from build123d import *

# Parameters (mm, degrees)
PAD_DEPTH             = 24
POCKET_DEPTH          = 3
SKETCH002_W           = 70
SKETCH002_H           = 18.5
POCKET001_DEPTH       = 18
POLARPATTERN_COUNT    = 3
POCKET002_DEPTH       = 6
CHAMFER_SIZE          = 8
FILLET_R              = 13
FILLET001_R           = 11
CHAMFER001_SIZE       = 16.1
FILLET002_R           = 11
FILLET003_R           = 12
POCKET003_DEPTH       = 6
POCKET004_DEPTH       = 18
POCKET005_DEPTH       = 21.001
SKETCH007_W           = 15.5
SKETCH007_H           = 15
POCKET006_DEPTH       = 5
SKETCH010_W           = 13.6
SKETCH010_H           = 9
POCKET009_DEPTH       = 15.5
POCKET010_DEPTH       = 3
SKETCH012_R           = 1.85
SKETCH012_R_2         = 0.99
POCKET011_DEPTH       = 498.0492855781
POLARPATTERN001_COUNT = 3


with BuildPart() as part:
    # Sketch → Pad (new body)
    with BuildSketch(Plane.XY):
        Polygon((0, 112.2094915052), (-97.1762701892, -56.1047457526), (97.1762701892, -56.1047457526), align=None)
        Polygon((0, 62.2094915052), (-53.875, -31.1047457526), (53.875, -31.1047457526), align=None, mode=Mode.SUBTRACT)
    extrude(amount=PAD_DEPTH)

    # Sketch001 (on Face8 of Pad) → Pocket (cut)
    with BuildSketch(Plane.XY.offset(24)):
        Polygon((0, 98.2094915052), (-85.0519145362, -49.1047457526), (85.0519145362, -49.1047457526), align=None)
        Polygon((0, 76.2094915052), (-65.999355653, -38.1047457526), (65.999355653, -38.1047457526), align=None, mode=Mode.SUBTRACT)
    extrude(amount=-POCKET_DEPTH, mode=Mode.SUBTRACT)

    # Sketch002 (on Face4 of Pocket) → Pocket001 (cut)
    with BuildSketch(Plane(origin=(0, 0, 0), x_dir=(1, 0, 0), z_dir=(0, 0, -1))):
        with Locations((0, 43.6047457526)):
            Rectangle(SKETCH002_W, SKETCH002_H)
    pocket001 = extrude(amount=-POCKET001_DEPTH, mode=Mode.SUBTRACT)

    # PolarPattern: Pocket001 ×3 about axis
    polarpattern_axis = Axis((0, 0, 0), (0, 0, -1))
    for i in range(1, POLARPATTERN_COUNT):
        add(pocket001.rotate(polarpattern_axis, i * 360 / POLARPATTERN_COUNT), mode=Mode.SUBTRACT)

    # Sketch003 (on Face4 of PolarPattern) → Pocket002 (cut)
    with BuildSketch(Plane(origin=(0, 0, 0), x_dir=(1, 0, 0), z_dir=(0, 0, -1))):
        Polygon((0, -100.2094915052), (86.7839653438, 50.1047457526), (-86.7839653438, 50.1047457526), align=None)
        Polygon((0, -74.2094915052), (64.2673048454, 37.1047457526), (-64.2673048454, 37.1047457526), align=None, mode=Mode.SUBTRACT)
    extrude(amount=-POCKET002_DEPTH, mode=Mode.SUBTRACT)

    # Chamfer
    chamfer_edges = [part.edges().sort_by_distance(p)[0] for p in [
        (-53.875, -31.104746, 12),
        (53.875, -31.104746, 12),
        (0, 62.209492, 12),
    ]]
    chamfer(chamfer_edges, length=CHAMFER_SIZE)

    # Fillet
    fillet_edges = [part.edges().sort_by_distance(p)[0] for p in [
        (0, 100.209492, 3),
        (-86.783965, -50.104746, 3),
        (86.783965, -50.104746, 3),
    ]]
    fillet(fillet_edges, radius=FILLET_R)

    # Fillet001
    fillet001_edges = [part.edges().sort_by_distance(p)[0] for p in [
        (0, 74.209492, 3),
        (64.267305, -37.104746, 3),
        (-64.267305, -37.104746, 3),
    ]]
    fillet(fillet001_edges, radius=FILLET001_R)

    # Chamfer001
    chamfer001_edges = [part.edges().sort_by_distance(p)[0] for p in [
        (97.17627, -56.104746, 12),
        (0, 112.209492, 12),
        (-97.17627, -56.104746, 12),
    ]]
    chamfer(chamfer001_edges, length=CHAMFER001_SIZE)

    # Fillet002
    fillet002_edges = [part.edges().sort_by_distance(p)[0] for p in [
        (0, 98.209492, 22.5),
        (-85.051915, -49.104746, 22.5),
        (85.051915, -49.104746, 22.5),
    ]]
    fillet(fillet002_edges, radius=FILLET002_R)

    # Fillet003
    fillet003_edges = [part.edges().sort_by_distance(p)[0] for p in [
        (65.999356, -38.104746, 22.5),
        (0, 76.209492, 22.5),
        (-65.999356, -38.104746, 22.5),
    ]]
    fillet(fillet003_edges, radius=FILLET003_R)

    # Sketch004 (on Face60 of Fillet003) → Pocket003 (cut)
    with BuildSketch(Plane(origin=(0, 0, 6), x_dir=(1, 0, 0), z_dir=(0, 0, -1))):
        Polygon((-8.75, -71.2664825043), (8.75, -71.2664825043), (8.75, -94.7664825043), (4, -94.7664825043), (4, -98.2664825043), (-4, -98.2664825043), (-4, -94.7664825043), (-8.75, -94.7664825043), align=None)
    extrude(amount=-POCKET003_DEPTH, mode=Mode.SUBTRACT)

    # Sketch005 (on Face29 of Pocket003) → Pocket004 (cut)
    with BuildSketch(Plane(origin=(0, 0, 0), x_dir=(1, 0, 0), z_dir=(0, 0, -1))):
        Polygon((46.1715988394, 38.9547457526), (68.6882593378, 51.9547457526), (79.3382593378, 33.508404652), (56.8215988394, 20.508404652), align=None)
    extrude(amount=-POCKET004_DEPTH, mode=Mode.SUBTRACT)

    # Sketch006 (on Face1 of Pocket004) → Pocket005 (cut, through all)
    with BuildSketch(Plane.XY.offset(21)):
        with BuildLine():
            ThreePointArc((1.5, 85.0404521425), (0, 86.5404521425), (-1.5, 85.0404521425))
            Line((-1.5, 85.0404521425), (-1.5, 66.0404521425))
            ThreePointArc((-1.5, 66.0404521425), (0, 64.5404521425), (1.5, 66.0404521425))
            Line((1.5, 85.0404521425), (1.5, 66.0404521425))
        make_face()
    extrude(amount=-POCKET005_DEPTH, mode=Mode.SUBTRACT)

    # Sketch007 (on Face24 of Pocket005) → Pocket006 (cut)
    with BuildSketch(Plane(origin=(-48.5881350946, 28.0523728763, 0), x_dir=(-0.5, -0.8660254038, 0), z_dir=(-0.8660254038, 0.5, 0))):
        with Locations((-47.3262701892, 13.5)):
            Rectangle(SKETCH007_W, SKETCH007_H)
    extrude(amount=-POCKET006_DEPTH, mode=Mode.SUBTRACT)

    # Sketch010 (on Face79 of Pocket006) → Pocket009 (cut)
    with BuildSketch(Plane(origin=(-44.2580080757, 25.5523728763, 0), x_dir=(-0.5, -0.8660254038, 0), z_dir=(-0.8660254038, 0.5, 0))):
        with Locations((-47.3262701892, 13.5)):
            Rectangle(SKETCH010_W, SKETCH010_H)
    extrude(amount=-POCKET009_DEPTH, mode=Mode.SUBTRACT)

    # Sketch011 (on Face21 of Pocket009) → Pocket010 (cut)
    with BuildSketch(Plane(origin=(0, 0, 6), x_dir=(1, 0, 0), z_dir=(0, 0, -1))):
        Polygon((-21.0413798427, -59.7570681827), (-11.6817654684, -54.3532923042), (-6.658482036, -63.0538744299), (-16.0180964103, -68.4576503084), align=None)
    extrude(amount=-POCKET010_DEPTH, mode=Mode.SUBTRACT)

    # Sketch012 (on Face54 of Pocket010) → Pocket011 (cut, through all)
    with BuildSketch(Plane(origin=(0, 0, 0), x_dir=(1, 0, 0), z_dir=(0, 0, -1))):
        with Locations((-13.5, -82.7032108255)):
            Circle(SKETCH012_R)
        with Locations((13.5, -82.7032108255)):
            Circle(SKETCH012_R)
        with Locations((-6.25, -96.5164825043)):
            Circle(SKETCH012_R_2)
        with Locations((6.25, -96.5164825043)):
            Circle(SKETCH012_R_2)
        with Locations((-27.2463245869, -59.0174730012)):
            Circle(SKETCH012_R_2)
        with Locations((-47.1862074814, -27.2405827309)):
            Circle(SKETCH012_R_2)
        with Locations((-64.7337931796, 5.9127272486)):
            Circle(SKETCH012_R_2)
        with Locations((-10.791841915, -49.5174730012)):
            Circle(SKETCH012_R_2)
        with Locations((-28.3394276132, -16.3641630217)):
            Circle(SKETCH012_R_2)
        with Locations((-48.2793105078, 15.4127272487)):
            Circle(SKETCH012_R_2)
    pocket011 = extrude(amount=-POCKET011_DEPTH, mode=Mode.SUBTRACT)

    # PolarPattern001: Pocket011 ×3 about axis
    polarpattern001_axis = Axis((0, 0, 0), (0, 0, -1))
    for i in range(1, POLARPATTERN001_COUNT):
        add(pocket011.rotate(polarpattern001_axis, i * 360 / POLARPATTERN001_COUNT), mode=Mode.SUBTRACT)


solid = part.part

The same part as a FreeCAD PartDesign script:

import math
import FreeCAD as App
import Part
import Sketcher
Q = App.Units.Quantity


def edges_at(feature, points):
    """Names of the edges that pass closest to the given points."""
    edges = feature.Shape.Edges
    near = lambda p: min(range(len(edges)), key=lambda i: edges[i].distToShape(Part.Vertex(*p))[0])
    return sorted({f"Edge{near(p) + 1}" for p in points})

doc = App.newDocument("Part")
body = doc.addObject("PartDesign::Body", "Body")

sketch1 = body.newObject("Sketcher::SketchObject", "Sketch")
sketch1.AttachmentSupport = (doc.getObject("XY_Plane"), [""])
sketch1.MapMode = "FlatFace"
sketch1.addGeometry([
    Part.LineSegment(App.Vector(0, 112, 0), App.Vector(-97, -56, 0)),
    Part.LineSegment(App.Vector(-97, -56, 0), App.Vector(97, -56, 0)),
    Part.LineSegment(App.Vector(97, -56, 0), App.Vector(0, 112, 0)),
    Part.LineSegment(App.Vector(-54, -31, 0), App.Vector(0, 62, 0)),
    Part.LineSegment(App.Vector(0, 62, 0), App.Vector(54, -31, 0)),
    Part.LineSegment(App.Vector(54, -31, 0), App.Vector(-54, -31, 0)),
], False)
sketch1.addConstraint([
    Sketcher.Constraint("Coincident", 0, 2, 1, 1),
    Sketcher.Constraint("Coincident", 1, 2, 2, 1),
    Sketcher.Constraint("Coincident", 2, 2, 0, 1),
    Sketcher.Constraint("Coincident", 3, 2, 4, 1),
    Sketcher.Constraint("Coincident", 4, 2, 5, 1),
    Sketcher.Constraint("Coincident", 5, 2, 3, 1),
    Sketcher.Constraint("Horizontal", 1),
    Sketcher.Constraint("Horizontal", 5),
    Sketcher.Constraint("PointOnObject", 2, 2, -2),
    Sketcher.Constraint("PointOnObject", 3, 2, -2),
    Sketcher.Constraint("Parallel", 0, 3),
    Sketcher.Constraint("Parallel", 2, 4),
    Sketcher.Constraint("Equal", 0, 2),
    Sketcher.Constraint("Angle", 0, Q("-120 deg")),
    Sketcher.Constraint("DistanceY", 3, 2, 2, 2, 50.0),
    Sketcher.Constraint("DistanceY", 1, 2, 4, 2, 25.0),
    Sketcher.Constraint("DistanceX", 5, 2, 5, 1, 107.75),
    Sketcher.Constraint("DistanceY", -1, 1, 2, 2, 112.209492),
])
pad1 = body.newObject("PartDesign::Pad", "Pad")
pad1.Profile = sketch1
pad1.Length = 24

sketch2 = body.newObject("Sketcher::SketchObject", "Sketch001")
sketch2.AttachmentSupport = (doc.getObject("XY_Plane"), [""])
sketch2.MapMode = "FlatFace"
sketch2.AttachmentOffset = App.Placement(App.Vector(0, 0, 24), App.Rotation())
sketch2.addGeometry([
    Part.LineSegment(App.Vector(0, 98, 0), App.Vector(-85, -49, 0)),
    Part.LineSegment(App.Vector(-85, -49, 0), App.Vector(85, -49, 0)),
    Part.LineSegment(App.Vector(85, -49, 0), App.Vector(0, 98, 0)),
    Part.LineSegment(App.Vector(-66, -38, 0), App.Vector(0, 76, 0)),
    Part.LineSegment(App.Vector(0, 76, 0), App.Vector(66, -38, 0)),
    Part.LineSegment(App.Vector(66, -38, 0), App.Vector(-66, -38, 0)),
], False)
sketch2.addConstraint([
    Sketcher.Constraint("Coincident", 0, 2, 1, 1),
    Sketcher.Constraint("Coincident", 1, 2, 2, 1),
    Sketcher.Constraint("Coincident", 2, 2, 0, 1),
    Sketcher.Constraint("Coincident", 3, 2, 4, 1),
    Sketcher.Constraint("Coincident", 4, 2, 5, 1),
    Sketcher.Constraint("Coincident", 5, 2, 3, 1),
    Sketcher.Constraint("Horizontal", 1),
    Sketcher.Constraint("Horizontal", 5),
    Sketcher.Constraint("PointOnObject", 2, 2, -2),
    Sketcher.Constraint("PointOnObject", 3, 2, -2),
    Sketcher.Constraint("Parallel", 0, 3),
    Sketcher.Constraint("Parallel", 2, 4),
    Sketcher.Constraint("Equal", 0, 2),
    Sketcher.Constraint("Angle", 0, Q("-120 deg")),
    Sketcher.Constraint("DistanceY", 3, 2, 2, 2, 22.0),
    Sketcher.Constraint("DistanceY", 1, 2, 4, 2, 11.0),
    Sketcher.Constraint("DistanceX", 1, 1, 1, 2, 170.103829),
    Sketcher.Constraint("DistanceY", -1, 1, 2, 2, 98.209492),
])
pocket1 = body.newObject("PartDesign::Pocket", "Pocket")
pocket1.Profile = sketch2
pocket1.Length = 3

sketch3 = body.newObject("Sketcher::SketchObject", "Sketch002")
sketch3.AttachmentSupport = (doc.getObject("XY_Plane"), [""])
sketch3.MapMode = "FlatFace"
sketch3.addGeometry([
    Part.LineSegment(App.Vector(-35, -53, 0), App.Vector(-35, -34, 0)),
    Part.LineSegment(App.Vector(-35, -34, 0), App.Vector(35, -34, 0)),
    Part.LineSegment(App.Vector(35, -34, 0), App.Vector(35, -53, 0)),
    Part.LineSegment(App.Vector(35, -53, 0), App.Vector(-35, -53, 0)),
], False)
sketch3.addConstraint([
    Sketcher.Constraint("Coincident", 0, 2, 1, 1),
    Sketcher.Constraint("Coincident", 1, 2, 2, 1),
    Sketcher.Constraint("Coincident", 2, 2, 3, 1),
    Sketcher.Constraint("Coincident", 3, 2, 0, 1),
    Sketcher.Constraint("Vertical", 0),
    Sketcher.Constraint("Horizontal", 1),
    Sketcher.Constraint("Vertical", 2),
    Sketcher.Constraint("Horizontal", 3),
    Sketcher.Constraint("DistanceX", 1, 1, 1, 2, 70.0),
    Sketcher.Constraint("DistanceY", 0, 1, 0, 2, 18.5),
    Sketcher.Constraint("DistanceX", 0, 2, -1, 1, 35.0),
    Sketcher.Constraint("DistanceY", 0, 2, -1, 1, 34.354746),
])
pocket2 = body.newObject("PartDesign::Pocket", "Pocket001")
pocket2.Profile = sketch3
pocket2.Length = 18
pocket2.Reversed = True
doc.recompute()

polarpattern = body.newObject("PartDesign::PolarPattern", "PolarPattern")
polarpattern.Originals = [pocket2]
polarpattern.Axis = (doc.getObject("Z_Axis"), [""])
polarpattern.Angle = 360
polarpattern.Occurrences = 3
body.Tip = polarpattern

sketch4 = body.newObject("Sketcher::SketchObject", "Sketch003")
sketch4.AttachmentSupport = (doc.getObject("XY_Plane"), [""])
sketch4.MapMode = "FlatFace"
sketch4.addGeometry([
    Part.LineSegment(App.Vector(0, 100, 0), App.Vector(87, -50, 0)),
    Part.LineSegment(App.Vector(87, -50, 0), App.Vector(-87, -50, 0)),
    Part.LineSegment(App.Vector(-87, -50, 0), App.Vector(0, 100, 0)),
    Part.LineSegment(App.Vector(64, -37, 0), App.Vector(0, 74, 0)),
    Part.LineSegment(App.Vector(0, 74, 0), App.Vector(-64, -37, 0)),
    Part.LineSegment(App.Vector(-64, -37, 0), App.Vector(64, -37, 0)),
], False)
sketch4.addConstraint([
    Sketcher.Constraint("Coincident", 0, 2, 1, 1),
    Sketcher.Constraint("Coincident", 1, 2, 2, 1),
    Sketcher.Constraint("Coincident", 2, 2, 0, 1),
    Sketcher.Constraint("Coincident", 3, 2, 4, 1),
    Sketcher.Constraint("Coincident", 4, 2, 5, 1),
    Sketcher.Constraint("Coincident", 5, 2, 3, 1),
    Sketcher.Constraint("Horizontal", 1),
    Sketcher.Constraint("Horizontal", 5),
    Sketcher.Constraint("PointOnObject", 2, 2, -2),
    Sketcher.Constraint("PointOnObject", 3, 2, -2),
    Sketcher.Constraint("Parallel", 0, 3),
    Sketcher.Constraint("Parallel", 2, 4),
    Sketcher.Constraint("Equal", 0, 2),
    Sketcher.Constraint("Angle", 0, Q("-60 deg")),
    Sketcher.Constraint("DistanceY", 3, 2, 2, 2, 26.0),
    Sketcher.Constraint("DistanceY", 1, 2, 4, 2, 13.0),
    Sketcher.Constraint("DistanceX", 1, 2, 1, 1, 173.567931),
    Sketcher.Constraint("DistanceY", -1, 1, 2, 2, 100.209492),
])
pocket3 = body.newObject("PartDesign::Pocket", "Pocket002")
pocket3.Profile = sketch4
pocket3.Length = 6
pocket3.Reversed = True
doc.recompute()

chamfer = body.newObject("PartDesign::Chamfer", "Chamfer")
chamfer.Base = (pocket3, edges_at(pocket3, [(-53.875, -31.105, 12), (53.875, -31.105, 12), (0, 62.209, 12)]))
chamfer.Size = 8
doc.recompute()

fillet = body.newObject("PartDesign::Fillet", "Fillet")
fillet.Base = (chamfer, edges_at(chamfer, [(0, 100.209, 3), (-86.784, -50.105, 3), (86.784, -50.105, 3)]))
fillet.Radius = 13
doc.recompute()

fillet2 = body.newObject("PartDesign::Fillet", "Fillet001")
fillet2.Base = (fillet, edges_at(fillet, [(0, 74.209, 3), (64.267, -37.105, 3), (-64.267, -37.105, 3)]))
fillet2.Radius = 11
doc.recompute()

chamfer2 = body.newObject("PartDesign::Chamfer", "Chamfer001")
chamfer2.Base = (fillet2, edges_at(fillet2, [(97.176, -56.105, 12), (0, 112.209, 12), (-97.176, -56.105, 12)]))
chamfer2.Size = 16.1
doc.recompute()

fillet3 = body.newObject("PartDesign::Fillet", "Fillet002")
fillet3.Base = (chamfer2, edges_at(chamfer2, [(0, 98.209, 22.5), (-85.052, -49.105, 22.5), (85.052, -49.105, 22.5)]))
fillet3.Radius = 11
doc.recompute()

fillet4 = body.newObject("PartDesign::Fillet", "Fillet003")
fillet4.Base = (fillet3, edges_at(fillet3, [(65.999, -38.105, 22.5), (0, 76.209, 22.5), (-65.999, -38.105, 22.5)]))
fillet4.Radius = 12

sketch5 = body.newObject("Sketcher::SketchObject", "Sketch004")
sketch5.AttachmentSupport = (doc.getObject("XY_Plane"), [""])
sketch5.MapMode = "FlatFace"
sketch5.AttachmentOffset = App.Placement(App.Vector(0, 0, 6), App.Rotation())
sketch5.addGeometry([
    Part.LineSegment(App.Vector(8.8, 71.3, 0), App.Vector(-8.8, 71.3, 0)),
    Part.LineSegment(App.Vector(-8.8, 71.3, 0), App.Vector(-8.8, 94.8, 0)),
    Part.LineSegment(App.Vector(-8.8, 94.8, 0), App.Vector(-4, 94.8, 0)),
    Part.LineSegment(App.Vector(-4, 94.8, 0), App.Vector(-4, 98.3, 0)),
    Part.LineSegment(App.Vector(-4, 98.3, 0), App.Vector(4, 98.3, 0)),
    Part.LineSegment(App.Vector(4, 98.3, 0), App.Vector(4, 94.8, 0)),
    Part.LineSegment(App.Vector(4, 94.8, 0), App.Vector(8.8, 94.8, 0)),
    Part.LineSegment(App.Vector(8.8, 94.8, 0), App.Vector(8.8, 71.3, 0)),
], False)
sketch5.addConstraint([
    Sketcher.Constraint("Coincident", 0, 2, 1, 1),
    Sketcher.Constraint("Coincident", 1, 2, 2, 1),
    Sketcher.Constraint("Coincident", 2, 2, 3, 1),
    Sketcher.Constraint("Coincident", 3, 2, 4, 1),
    Sketcher.Constraint("Coincident", 4, 2, 5, 1),
    Sketcher.Constraint("Coincident", 5, 2, 6, 1),
    Sketcher.Constraint("Coincident", 6, 2, 7, 1),
    Sketcher.Constraint("Coincident", 7, 2, 0, 1),
    Sketcher.Constraint("Horizontal", 0),
    Sketcher.Constraint("Vertical", 1),
    Sketcher.Constraint("Horizontal", 2),
    Sketcher.Constraint("Vertical", 3),
    Sketcher.Constraint("Horizontal", 4),
    Sketcher.Constraint("Vertical", 5),
    Sketcher.Constraint("Horizontal", 6),
    Sketcher.Constraint("Vertical", 7),
    Sketcher.Constraint("Symmetric", 2, 2, 5, 2, -2),
    Sketcher.Constraint("Equal", 2, 6),
    Sketcher.Constraint("DistanceX", 4, 1, 4, 2, 8.0),
    Sketcher.Constraint("DistanceX", 0, 2, 0, 1, 17.5),
    Sketcher.Constraint("DistanceY", 1, 1, 1, 2, 23.5),
    Sketcher.Constraint("DistanceY", 3, 1, 3, 2, 3.5),
    Sketcher.Constraint("DistanceY", -1, 1, 0, 2, 71.266483),
])
pocket4 = body.newObject("PartDesign::Pocket", "Pocket003")
pocket4.Profile = sketch5
pocket4.Length = 6
pocket4.Reversed = True

sketch6 = body.newObject("Sketcher::SketchObject", "Sketch005")
sketch6.AttachmentSupport = (doc.getObject("XY_Plane"), [""])
sketch6.MapMode = "FlatFace"
sketch6.addGeometry([
    Part.LineSegment(App.Vector(69, -52, 0), App.Vector(46, -39, 0)),
    Part.LineSegment(App.Vector(46, -39, 0), App.Vector(57, -21, 0)),
    Part.LineSegment(App.Vector(57, -21, 0), App.Vector(79, -34, 0)),
    Part.LineSegment(App.Vector(79, -34, 0), App.Vector(69, -52, 0)),
], False)
sketch6.addConstraint([
    Sketcher.Constraint("Coincident", 0, 2, 1, 1),
    Sketcher.Constraint("Coincident", 1, 2, 2, 1),
    Sketcher.Constraint("Coincident", 2, 2, 3, 1),
    Sketcher.Constraint("Coincident", 3, 2, 0, 1),
    Sketcher.Constraint("Perpendicular", 0, 1),
    Sketcher.Constraint("Perpendicular", 1, 2),
    Sketcher.Constraint("Perpendicular", 2, 3),
    Sketcher.Constraint("Angle", 0, Q("150 deg")),
    Sketcher.Constraint("Distance", 0, 26.0),
    Sketcher.Constraint("Distance", 1, 21.3),
    Sketcher.Constraint("DistanceX", -1, 1, 0, 2, 46.171599),
    Sketcher.Constraint("DistanceY", 0, 2, -1, 1, 38.954746),
])
pocket5 = body.newObject("PartDesign::Pocket", "Pocket004")
pocket5.Profile = sketch6
pocket5.Length = 18
pocket5.Reversed = True

sketch7 = body.newObject("Sketcher::SketchObject", "Sketch006")
sketch7.AttachmentSupport = (doc.getObject("XY_Plane"), [""])
sketch7.MapMode = "FlatFace"
sketch7.AttachmentOffset = App.Placement(App.Vector(0, 0, 21), App.Rotation())
sketch7.addGeometry([
    Part.ArcOfCircle(Part.Circle(App.Vector(0, 85, 0), App.Vector(0, 0, 1), 1.5), math.radians(0), math.radians(180)),
    Part.LineSegment(App.Vector(-1.5, 85, 0), App.Vector(-1.5, 66, 0)),
    Part.ArcOfCircle(Part.Circle(App.Vector(0, 66, 0), App.Vector(0, 0, 1), 1.5), math.radians(180), math.radians(360)),
    Part.LineSegment(App.Vector(1.5, 66, 0), App.Vector(1.5, 85, 0)),
], False)
sketch7.addConstraint([
    Sketcher.Constraint("Tangent", 0, 2, 1, 1),
    Sketcher.Constraint("Tangent", 1, 2, 2, 1),
    Sketcher.Constraint("Tangent", 2, 2, 3, 1),
    Sketcher.Constraint("Tangent", 3, 2, 0, 1),
    Sketcher.Constraint("Vertical", 1),
    Sketcher.Constraint("Vertical", 3),
    Sketcher.Constraint("PointOnObject", 0, 3, -2),
    Sketcher.Constraint("Radius", 0, 1.5),
    Sketcher.Constraint("DistanceY", 1, 2, 1, 1, 19.0),
    Sketcher.Constraint("DistanceY", -1, 1, 0, 3, 85.040452),
])
pocket6 = body.newObject("PartDesign::Pocket", "Pocket005")
pocket6.Profile = sketch7
pocket6.Type = "ThroughAll"

sketch8 = body.newObject("Sketcher::SketchObject", "Sketch007")
sketch8.Placement = App.Placement(App.Vector(-48.588135, 28.052373, 0), App.Rotation(App.Vector(-0.5, -0.866025404, 0), App.Vector(0, 0, 1), App.Vector(-0.866025404, 0.5, 0), "ZXY"))
sketch8.addGeometry([
    Part.LineSegment(App.Vector(-55, 21, 0), App.Vector(-55, 6, 0)),
    Part.LineSegment(App.Vector(-55, 6, 0), App.Vector(-40, 6, 0)),
    Part.LineSegment(App.Vector(-40, 6, 0), App.Vector(-40, 21, 0)),
    Part.LineSegment(App.Vector(-40, 21, 0), App.Vector(-55, 21, 0)),
], False)
sketch8.addConstraint([
    Sketcher.Constraint("Coincident", 0, 2, 1, 1),
    Sketcher.Constraint("Coincident", 1, 2, 2, 1),
    Sketcher.Constraint("Coincident", 2, 2, 3, 1),
    Sketcher.Constraint("Coincident", 3, 2, 0, 1),
    Sketcher.Constraint("Vertical", 0),
    Sketcher.Constraint("Horizontal", 1),
    Sketcher.Constraint("Vertical", 2),
    Sketcher.Constraint("Horizontal", 3),
    Sketcher.Constraint("DistanceY", 0, 2, 0, 1, 15.0),
    Sketcher.Constraint("DistanceX", 1, 1, 1, 2, 15.5),
    Sketcher.Constraint("DistanceY", -1, 1, 0, 2, 6.0),
    Sketcher.Constraint("DistanceX", 0, 2, -1, 1, 55.07627),
])
pocket7 = body.newObject("PartDesign::Pocket", "Pocket006")
pocket7.Profile = sketch8
pocket7.Length = 5

sketch9 = body.newObject("Sketcher::SketchObject", "Sketch008")
sketch9.Placement = App.Placement(App.Vector(-44.258008, 25.552373, 0), App.Rotation(App.Vector(-0.5, -0.866025404, 0), App.Vector(0, 0, 1), App.Vector(-0.866025404, 0.5, 0), "ZXY"))
sketch9.addGeometry([
    Part.LineSegment(App.Vector(-54, 18, 0), App.Vector(-54, 9, 0)),
    Part.LineSegment(App.Vector(-54, 9, 0), App.Vector(-41, 9, 0)),
    Part.LineSegment(App.Vector(-41, 9, 0), App.Vector(-41, 18, 0)),
    Part.LineSegment(App.Vector(-41, 18, 0), App.Vector(-54, 18, 0)),
], False)
sketch9.addConstraint([
    Sketcher.Constraint("Coincident", 0, 2, 1, 1),
    Sketcher.Constraint("Coincident", 1, 2, 2, 1),
    Sketcher.Constraint("Coincident", 2, 2, 3, 1),
    Sketcher.Constraint("Coincident", 3, 2, 0, 1),
    Sketcher.Constraint("Vertical", 0),
    Sketcher.Constraint("Horizontal", 1),
    Sketcher.Constraint("Vertical", 2),
    Sketcher.Constraint("Horizontal", 3),
    Sketcher.Constraint("DistanceY", 0, 2, 0, 1, 9.0),
    Sketcher.Constraint("DistanceX", 1, 1, 1, 2, 13.6),
    Sketcher.Constraint("DistanceY", -1, 1, 0, 2, 9.0),
    Sketcher.Constraint("DistanceX", 0, 2, -1, 1, 54.12627),
])
pocket8 = body.newObject("PartDesign::Pocket", "Pocket007")
pocket8.Profile = sketch9
pocket8.Length = 15.5

sketch10 = body.newObject("Sketcher::SketchObject", "Sketch009")
sketch10.AttachmentSupport = (doc.getObject("XY_Plane"), [""])
sketch10.MapMode = "FlatFace"
sketch10.AttachmentOffset = App.Placement(App.Vector(0, 0, 6), App.Rotation())
sketch10.addGeometry([
    Part.LineSegment(App.Vector(-12, 54, 0), App.Vector(-21, 60, 0)),
    Part.LineSegment(App.Vector(-21, 60, 0), App.Vector(-16, 68, 0)),
    Part.LineSegment(App.Vector(-16, 68, 0), App.Vector(-7, 63, 0)),
    Part.LineSegment(App.Vector(-7, 63, 0), App.Vector(-12, 54, 0)),
], False)
sketch10.addConstraint([
    Sketcher.Constraint("Coincident", 0, 2, 1, 1),
    Sketcher.Constraint("Coincident", 1, 2, 2, 1),
    Sketcher.Constraint("Coincident", 2, 2, 3, 1),
    Sketcher.Constraint("Coincident", 3, 2, 0, 1),
    Sketcher.Constraint("Perpendicular", 0, 1),
    Sketcher.Constraint("Perpendicular", 1, 2),
    Sketcher.Constraint("Perpendicular", 2, 3),
    Sketcher.Constraint("Angle", 0, Q("150 deg")),
    Sketcher.Constraint("Distance", 0, 10.807552),
    Sketcher.Constraint("DistanceX", 0, 2, -1, 1, 21.04138),
    Sketcher.Constraint("DistanceY", -1, 1, 0, 2, 59.757068),
    Sketcher.Constraint("DistanceY", -1, 1, 1, 2, 68.45765),
])
pocket9 = body.newObject("PartDesign::Pocket", "Pocket008")
pocket9.Profile = sketch10
pocket9.Length = 3
pocket9.Reversed = True

sketch11 = body.newObject("Sketcher::SketchObject", "Sketch010")
sketch11.AttachmentSupport = (doc.getObject("XY_Plane"), [""])
sketch11.MapMode = "FlatFace"
sketch11.addGeometry([
    Part.Circle(App.Vector(-13.5, 82.7, 0), App.Vector(0, 0, 1), 1.9),
    Part.Circle(App.Vector(13.5, 82.7, 0), App.Vector(0, 0, 1), 1.9),
    Part.Circle(App.Vector(-6.2, 96.5, 0), App.Vector(0, 0, 1), 1),
    Part.Circle(App.Vector(6.2, 96.5, 0), App.Vector(0, 0, 1), 1),
    Part.Circle(App.Vector(-27.2, 59, 0), App.Vector(0, 0, 1), 1),
    Part.Circle(App.Vector(-47.2, 27.2, 0), App.Vector(0, 0, 1), 1),
    Part.Circle(App.Vector(-64.7, -5.9, 0), App.Vector(0, 0, 1), 1),
    Part.Circle(App.Vector(-10.8, 49.5, 0), App.Vector(0, 0, 1), 1),
    Part.Circle(App.Vector(-28.3, 16.4, 0), App.Vector(0, 0, 1), 1),
    Part.Circle(App.Vector(-48.3, -15.4, 0), App.Vector(0, 0, 1), 1),
], False)
sketch11.addConstraint([
    Sketcher.Constraint("Equal", 0, 1),
    Sketcher.Constraint("Equal", 2, 3),
    Sketcher.Constraint("Equal", 3, 4),
    Sketcher.Constraint("Equal", 4, 5),
    Sketcher.Constraint("Equal", 5, 6),
    Sketcher.Constraint("Equal", 6, 7),
    Sketcher.Constraint("Equal", 7, 8),
    Sketcher.Constraint("Equal", 8, 9),
    Sketcher.Constraint("Symmetric", 0, 3, 1, 3, -2),
    Sketcher.Constraint("Symmetric", 2, 3, 3, 3, -2),
    Sketcher.Constraint("Diameter", 0, 3.7),
    Sketcher.Constraint("Diameter", 2, 1.98),
    Sketcher.Constraint("DistanceX", 0, 3, 1, 3, 27.0),
    Sketcher.Constraint("DistanceX", 2, 3, 3, 3, 12.5),
    Sketcher.Constraint("DistanceY", 7, 3, 4, 3, 9.5),
    Sketcher.Constraint("DistanceY", 9, 3, 6, 3, 9.5),
    Sketcher.Constraint("DistanceY", 5, 3, 2, 3, 69.2759),
    Sketcher.Constraint("DistanceY", 6, 3, 4, 3, 64.9302),
    Sketcher.Constraint("DistanceY", -1, 1, 0, 3, 82.703211),
    Sketcher.Constraint("DistanceX", 7, 3, -1, 1, 10.791842),
    Sketcher.Constraint("DistanceX", 9, 3, -1, 1, 48.279311),
    Sketcher.Constraint("DistanceY", 0, 3, 2, 3, 13.813272),
    Sketcher.Constraint("DistanceY", 4, 3, 2, 3, 37.49901),
    Sketcher.Constraint("DistanceX", 6, 3, 4, 3, 37.487469),
    Sketcher.Constraint("DistanceX", 5, 3, 8, 3, 18.84678),
    Sketcher.Constraint("DistanceY", 8, 3, 5, 3, 10.87642),
    Sketcher.Constraint("DistanceX", 4, 3, -1, 1, 27.246325),
    Sketcher.Constraint("DistanceX", 5, 3, -1, 1, 47.186207),
])
pocket10 = body.newObject("PartDesign::Pocket", "Pocket009")
pocket10.Profile = sketch11
pocket10.Type = "ThroughAll"
pocket10.Reversed = True
doc.recompute()

polarpattern2 = body.newObject("PartDesign::PolarPattern", "PolarPattern001")
polarpattern2.Originals = [pocket10]
polarpattern2.Axis = (doc.getObject("Z_Axis"), [""])
polarpattern2.Angle = 360
polarpattern2.Occurrences = 3
body.Tip = polarpattern2

doc.recompute()
